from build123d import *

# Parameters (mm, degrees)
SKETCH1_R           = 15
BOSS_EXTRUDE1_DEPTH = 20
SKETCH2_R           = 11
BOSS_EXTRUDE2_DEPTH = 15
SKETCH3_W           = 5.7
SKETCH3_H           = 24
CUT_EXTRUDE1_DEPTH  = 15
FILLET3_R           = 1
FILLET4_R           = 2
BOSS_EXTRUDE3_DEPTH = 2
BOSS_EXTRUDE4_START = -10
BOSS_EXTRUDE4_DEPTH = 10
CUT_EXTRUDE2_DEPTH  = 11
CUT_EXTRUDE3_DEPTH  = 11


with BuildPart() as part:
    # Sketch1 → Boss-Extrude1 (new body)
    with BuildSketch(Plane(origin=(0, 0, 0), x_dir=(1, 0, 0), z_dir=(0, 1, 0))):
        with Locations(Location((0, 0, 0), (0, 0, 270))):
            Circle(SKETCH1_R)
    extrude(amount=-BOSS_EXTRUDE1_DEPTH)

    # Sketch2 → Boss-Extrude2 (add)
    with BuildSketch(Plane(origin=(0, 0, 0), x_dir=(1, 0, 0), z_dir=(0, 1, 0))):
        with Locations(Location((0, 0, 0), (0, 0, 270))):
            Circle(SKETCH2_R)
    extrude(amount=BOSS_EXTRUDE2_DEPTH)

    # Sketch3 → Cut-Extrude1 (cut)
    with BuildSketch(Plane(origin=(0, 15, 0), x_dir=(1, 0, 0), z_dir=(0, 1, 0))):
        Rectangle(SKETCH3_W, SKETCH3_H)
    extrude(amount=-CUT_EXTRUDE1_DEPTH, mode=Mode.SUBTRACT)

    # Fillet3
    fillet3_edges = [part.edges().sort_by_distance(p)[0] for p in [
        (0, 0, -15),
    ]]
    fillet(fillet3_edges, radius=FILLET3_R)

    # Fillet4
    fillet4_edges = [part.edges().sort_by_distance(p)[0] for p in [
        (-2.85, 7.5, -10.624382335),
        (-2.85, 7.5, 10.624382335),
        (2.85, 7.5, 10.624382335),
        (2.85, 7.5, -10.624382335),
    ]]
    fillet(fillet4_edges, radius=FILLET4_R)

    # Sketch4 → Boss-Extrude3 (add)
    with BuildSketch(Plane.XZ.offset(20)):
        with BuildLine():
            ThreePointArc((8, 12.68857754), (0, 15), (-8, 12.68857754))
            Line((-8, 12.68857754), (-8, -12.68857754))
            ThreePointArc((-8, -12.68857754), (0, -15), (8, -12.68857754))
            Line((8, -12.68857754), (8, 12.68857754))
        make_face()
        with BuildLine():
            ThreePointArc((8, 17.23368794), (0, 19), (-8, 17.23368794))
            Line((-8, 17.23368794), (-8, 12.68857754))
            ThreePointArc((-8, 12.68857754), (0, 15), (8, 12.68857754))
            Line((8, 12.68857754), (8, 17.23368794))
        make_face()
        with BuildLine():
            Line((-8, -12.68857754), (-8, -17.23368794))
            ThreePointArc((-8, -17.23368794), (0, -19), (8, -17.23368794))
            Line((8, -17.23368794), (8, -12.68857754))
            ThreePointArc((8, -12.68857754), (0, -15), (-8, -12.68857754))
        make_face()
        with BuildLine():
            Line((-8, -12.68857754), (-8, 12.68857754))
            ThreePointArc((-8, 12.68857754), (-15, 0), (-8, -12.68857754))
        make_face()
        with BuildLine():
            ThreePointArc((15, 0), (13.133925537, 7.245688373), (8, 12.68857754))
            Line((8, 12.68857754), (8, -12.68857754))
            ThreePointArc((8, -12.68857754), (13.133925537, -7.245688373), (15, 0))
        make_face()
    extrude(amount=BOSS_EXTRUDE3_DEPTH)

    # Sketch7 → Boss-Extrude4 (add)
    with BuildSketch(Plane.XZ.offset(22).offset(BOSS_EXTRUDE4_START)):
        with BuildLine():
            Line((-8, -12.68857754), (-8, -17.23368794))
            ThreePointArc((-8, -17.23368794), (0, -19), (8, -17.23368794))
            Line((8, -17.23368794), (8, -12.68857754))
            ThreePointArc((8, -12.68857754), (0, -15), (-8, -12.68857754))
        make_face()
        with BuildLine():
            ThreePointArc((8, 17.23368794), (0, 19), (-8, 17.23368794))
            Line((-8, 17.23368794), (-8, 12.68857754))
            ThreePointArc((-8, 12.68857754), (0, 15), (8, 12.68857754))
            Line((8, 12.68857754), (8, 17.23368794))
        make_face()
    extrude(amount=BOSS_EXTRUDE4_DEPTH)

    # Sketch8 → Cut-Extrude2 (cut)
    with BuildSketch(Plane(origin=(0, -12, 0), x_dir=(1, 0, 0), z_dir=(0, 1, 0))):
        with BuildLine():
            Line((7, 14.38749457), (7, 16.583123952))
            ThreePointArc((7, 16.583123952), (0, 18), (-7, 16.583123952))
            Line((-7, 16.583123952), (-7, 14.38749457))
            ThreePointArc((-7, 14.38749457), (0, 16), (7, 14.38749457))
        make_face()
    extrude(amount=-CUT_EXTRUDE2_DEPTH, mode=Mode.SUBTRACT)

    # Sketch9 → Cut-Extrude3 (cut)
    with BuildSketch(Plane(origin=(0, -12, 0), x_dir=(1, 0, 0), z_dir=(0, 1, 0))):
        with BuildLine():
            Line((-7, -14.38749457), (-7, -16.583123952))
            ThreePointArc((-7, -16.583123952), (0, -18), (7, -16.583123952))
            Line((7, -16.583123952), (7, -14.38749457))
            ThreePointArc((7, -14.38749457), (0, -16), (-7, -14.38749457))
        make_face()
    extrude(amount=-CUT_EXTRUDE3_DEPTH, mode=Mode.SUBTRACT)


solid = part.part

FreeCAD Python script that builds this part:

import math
import FreeCAD as App
import Part
import Sketcher

V = App.Vector


def edges_at(feature, points):
    """Names of the edges that pass closest to the given points."""
    edges = feature.Shape.Edges
    near = lambda p: min(range(len(edges)), key=lambda i: edges[i].distToShape(Part.Vertex(*p))[0])
    return sorted({f"Edge{near(p) + 1}" for p in points})

doc = App.newDocument("Part")
body = doc.addObject("PartDesign::Body", "Body")

# Sketch on XZ plane
sketch1 = body.newObject("Sketcher::SketchObject", "Sketch")
sketch1.AttachmentSupport = (doc.getObject("XZ_Plane"), [""])
sketch1.MapMode = "FlatFace"
sketch1.addGeometry(Part.Circle(V(0, 0, 0), V(0, 0, 1), 15), False)
sketch1.addConstraint([
    Sketcher.Constraint("Coincident", 0, 3, -1, 1),
    Sketcher.Constraint("Diameter", 0, 30.0),
])
pad1 = body.newObject("PartDesign::Pad", "Pad")
pad1.Profile = sketch1
pad1.Length = 20

# Sketch on XZ plane
sketch2 = body.newObject("Sketcher::SketchObject", "Sketch001")
sketch2.AttachmentSupport = (doc.getObject("XZ_Plane"), [""])
sketch2.MapMode = "FlatFace"
sketch2.addGeometry(Part.Circle(V(0, 0, 0), V(0, 0, 1), 11), False)
sketch2.addConstraint([
    Sketcher.Constraint("Coincident", 0, 3, -1, 1),
    Sketcher.Constraint("Diameter", 0, 22.0),
])
pad2 = body.newObject("PartDesign::Pad", "Pad001")
pad2.Profile = sketch2
pad2.Length = 15
pad2.Reversed = True

# Sketch on XZ plane
sketch3 = body.newObject("Sketcher::SketchObject", "Sketch002")
sketch3.AttachmentSupport = (doc.getObject("XZ_Plane"), [""])
sketch3.MapMode = "FlatFace"
sketch3.AttachmentOffset = App.Placement(V(0, 0, -15), App.Rotation())
sketch3.addGeometry([
    Part.LineSegment(V(-3, -12, 0), V(-3, 12, 0)),
    Part.LineSegment(V(-3, 12, 0), V(3, 12, 0)),
    Part.LineSegment(V(3, 12, 0), V(3, -12, 0)),
    Part.LineSegment(V(3, -12, 0), V(-3, -12, 0)),
], False)
sketch3.addConstraint([
    Sketcher.Constraint("Coincident", 0, 2, 1, 1),
    Sketcher.Constraint("Coincident", 1, 2, 2, 1),
    Sketcher.Constraint("Coincident", 2, 2, 3, 1),
    Sketcher.Constraint("Coincident", 3, 2, 0, 1),
    Sketcher.Constraint("Vertical", 0),
    Sketcher.Constraint("Horizontal", 1),
    Sketcher.Constraint("Vertical", 2),
    Sketcher.Constraint("Horizontal", 3),
    Sketcher.Constraint("Symmetric", 0, 2, 2, 2, -1, 1),
    Sketcher.Constraint("DistanceY", 0, 1, 0, 2, 24.0),
    Sketcher.Constraint("DistanceX", 1, 1, 1, 2, 5.7),
])
pocket1 = body.newObject("PartDesign::Pocket", "Pocket")
pocket1.Profile = sketch3
pocket1.Length = 15
pocket1.Reversed = True
doc.recompute()

fillet = body.newObject("PartDesign::Fillet", "Fillet")
fillet.Base = (pocket1, edges_at(pocket1, [(0, 0, -15)]))
fillet.Radius = 1
doc.recompute()

fillet2 = body.newObject("PartDesign::Fillet", "Fillet001")
fillet2.Base = (fillet, edges_at(fillet, [
    (-2.85, 7.5, -10.624),
    (-2.85, 7.5, 10.624),
    (2.85, 7.5, 10.624),
    (2.85, 7.5, -10.624),
]))
fillet2.Radius = 2

# Sketch on XZ plane
sketch4 = body.newObject("Sketcher::SketchObject", "Sketch003")
sketch4.AttachmentSupport = (doc.getObject("XZ_Plane"), [""])
sketch4.MapMode = "FlatFace"
sketch4.AttachmentOffset = App.Placement(V(0, 0, 20), App.Rotation())
sketch4.addGeometry([
    Part.ArcOfCircle(Part.Circle(V(0, 0, 0), V(0, 0, 1), 15), math.radians(0), math.radians(58)),  # 0
    Part.LineSegment(V(8, 12.7, 0), V(8, 17.2, 0)),  # 1
    Part.ArcOfCircle(Part.Circle(V(0, 0, 0), V(0, 0, 1), 19), math.radians(65), math.radians(115)),  # 2
    Part.LineSegment(V(-8, 17.2, 0), V(-8, 12.7, 0)),  # 3
    Part.ArcOfCircle(Part.Circle(V(0, 0, 0), V(0, 0, 1), 15), math.radians(122), math.radians(238)),  # 4
    Part.LineSegment(V(-8, -12.7, 0), V(-8, -17.2, 0)),  # 5
    Part.ArcOfCircle(Part.Circle(V(0, 0, 0), V(0, 0, 1), 19), math.radians(-115), math.radians(-65)),  # 6
    Part.LineSegment(V(8, -17.2, 0), V(8, -12.7, 0)),  # 7
    Part.ArcOfCircle(Part.Circle(V(0, 0, 0), V(0, 0, 1), 15), math.radians(-58), math.radians(0)),  # 8
], False)
sketch4.addConstraint([
    Sketcher.Constraint("Coincident", 0, 2, 1, 1),
    Sketcher.Constraint("Coincident", 1, 2, 2, 1),
    Sketcher.Constraint("Coincident", 2, 2, 3, 1),
    Sketcher.Constraint("Coincident", 3, 2, 4, 1),
    Sketcher.Constraint("Coincident", 4, 2, 5, 1),
    Sketcher.Constraint("Coincident", 5, 2, 6, 1),
    Sketcher.Constraint("Coincident", 6, 2, 7, 1),
    Sketcher.Constraint("Coincident", 7, 2, 8, 1),
    Sketcher.Constraint("Tangent", 8, 2, 0, 1),
    Sketcher.Constraint("Vertical", 1),
    Sketcher.Constraint("Vertical", 3),
    Sketcher.Constraint("Vertical", 5),
    Sketcher.Constraint("Vertical", 7),
    Sketcher.Constraint("Coincident", 0, 3, -1, 1),
    Sketcher.Constraint("Coincident", 2, 3, -1, 1),
    Sketcher.Constraint("Coincident", 4, 3, -1, 1),
    Sketcher.Constraint("Coincident", 6, 3, -1, 1),
    Sketcher.Constraint("Equal", 0, 4),
    Sketcher.Constraint("Equal", 2, 6),
    Sketcher.Constraint("Equal", 4, 8),
    Sketcher.Constraint("PointOnObject", 8, 2, -1),
    Sketcher.Constraint("Horizontal", 1, 2, 2, 2),
    Sketcher.Constraint("Horizontal", 5, 2, 6, 2),
    Sketcher.Constraint("Vertical", 3, 2, 4, 2),
    Sketcher.Constraint("Radius", 0, 15.0),
    Sketcher.Constraint("Radius", 2, 19.0),
    Sketcher.Constraint("DistanceX", -1, 1, 0, 2, 8.0),
])
pad3 = body.newObject("PartDesign::Pad", "Pad002")
pad3.Profile = sketch4
pad3.Length = 2

# Sketch on XZ plane
sketch5 = body.newObject("Sketcher::SketchObject", "Sketch004")
sketch5.AttachmentSupport = (doc.getObject("XZ_Plane"), [""])
sketch5.MapMode = "FlatFace"
sketch5.AttachmentOffset = App.Placement(V(0, 0, 12), App.Rotation())
sketch5.addGeometry([
    Part.LineSegment(V(-8, -12.7, 0), V(-8, -17.2, 0)),  # 0
    Part.ArcOfCircle(Part.Circle(V(0, 0, 0), V(0, 0, 1), 19), math.radians(-115), math.radians(-65)),  # 1
    Part.LineSegment(V(8, -17.2, 0), V(8, -12.7, 0)),  # 2
    Part.ArcOfCircle(Part.Circle(V(0, 0, 0), V(0, 0, 1), 15), math.radians(-122), math.radians(-58)),  # 3
    Part.ArcOfCircle(Part.Circle(V(0, 0, 0), V(0, 0, 1), 19), math.radians(65), math.radians(115)),  # 4
    Part.LineSegment(V(-8, 17.2, 0), V(-8, 12.7, 0)),  # 5
    Part.ArcOfCircle(Part.Circle(V(0, 0, 0), V(0, 0, 1), 15), math.radians(58), math.radians(122)),  # 6
    Part.LineSegment(V(8, 12.7, 0), V(8, 17.2, 0)),  # 7
], False)
sketch5.addConstraint([
    Sketcher.Constraint("Coincident", 0, 2, 1, 1),
    Sketcher.Constraint("Coincident", 1, 2, 2, 1),
    Sketcher.Constraint("Coincident", 2, 2, 3, 2),
    Sketcher.Constraint("Coincident", 3, 1, 0, 1),
    Sketcher.Constraint("Coincident", 4, 2, 5, 1),
    Sketcher.Constraint("Coincident", 5, 2, 6, 2),
    Sketcher.Constraint("Coincident", 6, 1, 7, 1),
    Sketcher.Constraint("Coincident", 7, 2, 4, 1),
    Sketcher.Constraint("Vertical", 0),
    Sketcher.Constraint("Vertical", 2),
    Sketcher.Constraint("Vertical", 5),
    Sketcher.Constraint("Vertical", 7),
    Sketcher.Constraint("Coincident", 1, 3, -1, 1),
    Sketcher.Constraint("Coincident", 3, 3, -1, 1),
    Sketcher.Constraint("Coincident", 4, 3, -1, 1),
    Sketcher.Constraint("Coincident", 6, 3, -1, 1),
    Sketcher.Constraint("Equal", 1, 4),
    Sketcher.Constraint("Equal", 3, 6),
    Sketcher.Constraint("Horizontal", 0, 2, 1, 2),
    Sketcher.Constraint("Horizontal", 5, 2, 6, 1),
    Sketcher.Constraint("Vertical", 3, 1, 4, 2),
    Sketcher.Constraint("Radius", 1, 19.0),
    Sketcher.Constraint("Radius", 3, 15.0),
    Sketcher.Constraint("DistanceX", 0, 2, -1, 1, 8.0),
])
pad4 = body.newObject("PartDesign::Pad", "Pad003")
pad4.Profile = sketch5
pad4.Length = 10

# Sketch on XZ plane
sketch6 = body.newObject("Sketcher::SketchObject", "Sketch005")
sketch6.AttachmentSupport = (doc.getObject("XZ_Plane"), [""])
sketch6.MapMode = "FlatFace"
sketch6.AttachmentOffset = App.Placement(V(0, 0, 12), App.Rotation())
sketch6.addGeometry([
    Part.LineSegment(V(7, -14.4, 0), V(7, -16.6, 0)),
    Part.ArcOfCircle(Part.Circle(V(0, 0, 0), V(0, 0, 1), 18), math.radians(-113), math.radians(-67)),
    Part.LineSegment(V(-7, -16.6, 0), V(-7, -14.4, 0)),
    Part.ArcOfCircle(Part.Circle(V(0, 0, 0), V(0, 0, 1), 16), math.radians(-116), math.radians(-64)),
], False)
sketch6.addConstraint([
    Sketcher.Constraint("Coincident", 0, 2, 1, 2),
    Sketcher.Constraint("Coincident", 1, 1, 2, 1),
    Sketcher.Constraint("Coincident", 2, 2, 3, 1),
    Sketcher.Constraint("Coincident", 3, 2, 0, 1),
    Sketcher.Constraint("Vertical", 0),
    Sketcher.Constraint("Vertical", 2),
    Sketcher.Constraint("Coincident", 1, 3, -1, 1),
    Sketcher.Constraint("Coincident", 3, 3, -1, 1),
    Sketcher.Constraint("Horizontal", 0, 2, 1, 1),
    Sketcher.Constraint("Radius", 1, 18.0),
    Sketcher.Constraint("Radius", 3, 16.0),
    Sketcher.Constraint("DistanceX", -1, 1, 0, 2, 7.0),
])
pocket2 = body.newObject("PartDesign::Pocket", "Pocket001")
pocket2.Profile = sketch6
pocket2.Length = 11
pocket2.Reversed = True

# Sketch on XZ plane
sketch7 = body.newObject("Sketcher::SketchObject", "Sketch006")
sketch7.AttachmentSupport = (doc.getObject("XZ_Plane"), [""])
sketch7.MapMode = "FlatFace"
sketch7.AttachmentOffset = App.Placement(V(0, 0, 12), App.Rotation())
sketch7.addGeometry([
    Part.LineSegment(V(-7, 14.4, 0), V(-7, 16.6, 0)),
    Part.ArcOfCircle(Part.Circle(V(0, 0, 0), V(0, 0, 1), 18), math.radians(67), math.radians(113)),
    Part.LineSegment(V(7, 16.6, 0), V(7, 14.4, 0)),
    Part.ArcOfCircle(Part.Circle(V(0, 0, 0), V(0, 0, 1), 16), math.radians(64), math.radians(116)),
], False)
sketch7.addConstraint([
    Sketcher.Constraint("Coincident", 0, 2, 1, 2),
    Sketcher.Constraint("Coincident", 1, 1, 2, 1),
    Sketcher.Constraint("Coincident", 2, 2, 3, 1),
    Sketcher.Constraint("Coincident", 3, 2, 0, 1),
    Sketcher.Constraint("Vertical", 0),
    Sketcher.Constraint("Vertical", 2),
    Sketcher.Constraint("Coincident", 1, 3, -1, 1),
    Sketcher.Constraint("Coincident", 3, 3, -1, 1),
    Sketcher.Constraint("Horizontal", 0, 2, 1, 1),
    Sketcher.Constraint("Radius", 1, 18.0),
    Sketcher.Constraint("Radius", 3, 16.0),
    Sketcher.Constraint("DistanceX", 0, 2, -1, 1, 7.0),
])
pocket3 = body.newObject("PartDesign::Pocket", "Pocket002")
pocket3.Profile = sketch7
pocket3.Length = 11
pocket3.Reversed = True

doc.recompute()
